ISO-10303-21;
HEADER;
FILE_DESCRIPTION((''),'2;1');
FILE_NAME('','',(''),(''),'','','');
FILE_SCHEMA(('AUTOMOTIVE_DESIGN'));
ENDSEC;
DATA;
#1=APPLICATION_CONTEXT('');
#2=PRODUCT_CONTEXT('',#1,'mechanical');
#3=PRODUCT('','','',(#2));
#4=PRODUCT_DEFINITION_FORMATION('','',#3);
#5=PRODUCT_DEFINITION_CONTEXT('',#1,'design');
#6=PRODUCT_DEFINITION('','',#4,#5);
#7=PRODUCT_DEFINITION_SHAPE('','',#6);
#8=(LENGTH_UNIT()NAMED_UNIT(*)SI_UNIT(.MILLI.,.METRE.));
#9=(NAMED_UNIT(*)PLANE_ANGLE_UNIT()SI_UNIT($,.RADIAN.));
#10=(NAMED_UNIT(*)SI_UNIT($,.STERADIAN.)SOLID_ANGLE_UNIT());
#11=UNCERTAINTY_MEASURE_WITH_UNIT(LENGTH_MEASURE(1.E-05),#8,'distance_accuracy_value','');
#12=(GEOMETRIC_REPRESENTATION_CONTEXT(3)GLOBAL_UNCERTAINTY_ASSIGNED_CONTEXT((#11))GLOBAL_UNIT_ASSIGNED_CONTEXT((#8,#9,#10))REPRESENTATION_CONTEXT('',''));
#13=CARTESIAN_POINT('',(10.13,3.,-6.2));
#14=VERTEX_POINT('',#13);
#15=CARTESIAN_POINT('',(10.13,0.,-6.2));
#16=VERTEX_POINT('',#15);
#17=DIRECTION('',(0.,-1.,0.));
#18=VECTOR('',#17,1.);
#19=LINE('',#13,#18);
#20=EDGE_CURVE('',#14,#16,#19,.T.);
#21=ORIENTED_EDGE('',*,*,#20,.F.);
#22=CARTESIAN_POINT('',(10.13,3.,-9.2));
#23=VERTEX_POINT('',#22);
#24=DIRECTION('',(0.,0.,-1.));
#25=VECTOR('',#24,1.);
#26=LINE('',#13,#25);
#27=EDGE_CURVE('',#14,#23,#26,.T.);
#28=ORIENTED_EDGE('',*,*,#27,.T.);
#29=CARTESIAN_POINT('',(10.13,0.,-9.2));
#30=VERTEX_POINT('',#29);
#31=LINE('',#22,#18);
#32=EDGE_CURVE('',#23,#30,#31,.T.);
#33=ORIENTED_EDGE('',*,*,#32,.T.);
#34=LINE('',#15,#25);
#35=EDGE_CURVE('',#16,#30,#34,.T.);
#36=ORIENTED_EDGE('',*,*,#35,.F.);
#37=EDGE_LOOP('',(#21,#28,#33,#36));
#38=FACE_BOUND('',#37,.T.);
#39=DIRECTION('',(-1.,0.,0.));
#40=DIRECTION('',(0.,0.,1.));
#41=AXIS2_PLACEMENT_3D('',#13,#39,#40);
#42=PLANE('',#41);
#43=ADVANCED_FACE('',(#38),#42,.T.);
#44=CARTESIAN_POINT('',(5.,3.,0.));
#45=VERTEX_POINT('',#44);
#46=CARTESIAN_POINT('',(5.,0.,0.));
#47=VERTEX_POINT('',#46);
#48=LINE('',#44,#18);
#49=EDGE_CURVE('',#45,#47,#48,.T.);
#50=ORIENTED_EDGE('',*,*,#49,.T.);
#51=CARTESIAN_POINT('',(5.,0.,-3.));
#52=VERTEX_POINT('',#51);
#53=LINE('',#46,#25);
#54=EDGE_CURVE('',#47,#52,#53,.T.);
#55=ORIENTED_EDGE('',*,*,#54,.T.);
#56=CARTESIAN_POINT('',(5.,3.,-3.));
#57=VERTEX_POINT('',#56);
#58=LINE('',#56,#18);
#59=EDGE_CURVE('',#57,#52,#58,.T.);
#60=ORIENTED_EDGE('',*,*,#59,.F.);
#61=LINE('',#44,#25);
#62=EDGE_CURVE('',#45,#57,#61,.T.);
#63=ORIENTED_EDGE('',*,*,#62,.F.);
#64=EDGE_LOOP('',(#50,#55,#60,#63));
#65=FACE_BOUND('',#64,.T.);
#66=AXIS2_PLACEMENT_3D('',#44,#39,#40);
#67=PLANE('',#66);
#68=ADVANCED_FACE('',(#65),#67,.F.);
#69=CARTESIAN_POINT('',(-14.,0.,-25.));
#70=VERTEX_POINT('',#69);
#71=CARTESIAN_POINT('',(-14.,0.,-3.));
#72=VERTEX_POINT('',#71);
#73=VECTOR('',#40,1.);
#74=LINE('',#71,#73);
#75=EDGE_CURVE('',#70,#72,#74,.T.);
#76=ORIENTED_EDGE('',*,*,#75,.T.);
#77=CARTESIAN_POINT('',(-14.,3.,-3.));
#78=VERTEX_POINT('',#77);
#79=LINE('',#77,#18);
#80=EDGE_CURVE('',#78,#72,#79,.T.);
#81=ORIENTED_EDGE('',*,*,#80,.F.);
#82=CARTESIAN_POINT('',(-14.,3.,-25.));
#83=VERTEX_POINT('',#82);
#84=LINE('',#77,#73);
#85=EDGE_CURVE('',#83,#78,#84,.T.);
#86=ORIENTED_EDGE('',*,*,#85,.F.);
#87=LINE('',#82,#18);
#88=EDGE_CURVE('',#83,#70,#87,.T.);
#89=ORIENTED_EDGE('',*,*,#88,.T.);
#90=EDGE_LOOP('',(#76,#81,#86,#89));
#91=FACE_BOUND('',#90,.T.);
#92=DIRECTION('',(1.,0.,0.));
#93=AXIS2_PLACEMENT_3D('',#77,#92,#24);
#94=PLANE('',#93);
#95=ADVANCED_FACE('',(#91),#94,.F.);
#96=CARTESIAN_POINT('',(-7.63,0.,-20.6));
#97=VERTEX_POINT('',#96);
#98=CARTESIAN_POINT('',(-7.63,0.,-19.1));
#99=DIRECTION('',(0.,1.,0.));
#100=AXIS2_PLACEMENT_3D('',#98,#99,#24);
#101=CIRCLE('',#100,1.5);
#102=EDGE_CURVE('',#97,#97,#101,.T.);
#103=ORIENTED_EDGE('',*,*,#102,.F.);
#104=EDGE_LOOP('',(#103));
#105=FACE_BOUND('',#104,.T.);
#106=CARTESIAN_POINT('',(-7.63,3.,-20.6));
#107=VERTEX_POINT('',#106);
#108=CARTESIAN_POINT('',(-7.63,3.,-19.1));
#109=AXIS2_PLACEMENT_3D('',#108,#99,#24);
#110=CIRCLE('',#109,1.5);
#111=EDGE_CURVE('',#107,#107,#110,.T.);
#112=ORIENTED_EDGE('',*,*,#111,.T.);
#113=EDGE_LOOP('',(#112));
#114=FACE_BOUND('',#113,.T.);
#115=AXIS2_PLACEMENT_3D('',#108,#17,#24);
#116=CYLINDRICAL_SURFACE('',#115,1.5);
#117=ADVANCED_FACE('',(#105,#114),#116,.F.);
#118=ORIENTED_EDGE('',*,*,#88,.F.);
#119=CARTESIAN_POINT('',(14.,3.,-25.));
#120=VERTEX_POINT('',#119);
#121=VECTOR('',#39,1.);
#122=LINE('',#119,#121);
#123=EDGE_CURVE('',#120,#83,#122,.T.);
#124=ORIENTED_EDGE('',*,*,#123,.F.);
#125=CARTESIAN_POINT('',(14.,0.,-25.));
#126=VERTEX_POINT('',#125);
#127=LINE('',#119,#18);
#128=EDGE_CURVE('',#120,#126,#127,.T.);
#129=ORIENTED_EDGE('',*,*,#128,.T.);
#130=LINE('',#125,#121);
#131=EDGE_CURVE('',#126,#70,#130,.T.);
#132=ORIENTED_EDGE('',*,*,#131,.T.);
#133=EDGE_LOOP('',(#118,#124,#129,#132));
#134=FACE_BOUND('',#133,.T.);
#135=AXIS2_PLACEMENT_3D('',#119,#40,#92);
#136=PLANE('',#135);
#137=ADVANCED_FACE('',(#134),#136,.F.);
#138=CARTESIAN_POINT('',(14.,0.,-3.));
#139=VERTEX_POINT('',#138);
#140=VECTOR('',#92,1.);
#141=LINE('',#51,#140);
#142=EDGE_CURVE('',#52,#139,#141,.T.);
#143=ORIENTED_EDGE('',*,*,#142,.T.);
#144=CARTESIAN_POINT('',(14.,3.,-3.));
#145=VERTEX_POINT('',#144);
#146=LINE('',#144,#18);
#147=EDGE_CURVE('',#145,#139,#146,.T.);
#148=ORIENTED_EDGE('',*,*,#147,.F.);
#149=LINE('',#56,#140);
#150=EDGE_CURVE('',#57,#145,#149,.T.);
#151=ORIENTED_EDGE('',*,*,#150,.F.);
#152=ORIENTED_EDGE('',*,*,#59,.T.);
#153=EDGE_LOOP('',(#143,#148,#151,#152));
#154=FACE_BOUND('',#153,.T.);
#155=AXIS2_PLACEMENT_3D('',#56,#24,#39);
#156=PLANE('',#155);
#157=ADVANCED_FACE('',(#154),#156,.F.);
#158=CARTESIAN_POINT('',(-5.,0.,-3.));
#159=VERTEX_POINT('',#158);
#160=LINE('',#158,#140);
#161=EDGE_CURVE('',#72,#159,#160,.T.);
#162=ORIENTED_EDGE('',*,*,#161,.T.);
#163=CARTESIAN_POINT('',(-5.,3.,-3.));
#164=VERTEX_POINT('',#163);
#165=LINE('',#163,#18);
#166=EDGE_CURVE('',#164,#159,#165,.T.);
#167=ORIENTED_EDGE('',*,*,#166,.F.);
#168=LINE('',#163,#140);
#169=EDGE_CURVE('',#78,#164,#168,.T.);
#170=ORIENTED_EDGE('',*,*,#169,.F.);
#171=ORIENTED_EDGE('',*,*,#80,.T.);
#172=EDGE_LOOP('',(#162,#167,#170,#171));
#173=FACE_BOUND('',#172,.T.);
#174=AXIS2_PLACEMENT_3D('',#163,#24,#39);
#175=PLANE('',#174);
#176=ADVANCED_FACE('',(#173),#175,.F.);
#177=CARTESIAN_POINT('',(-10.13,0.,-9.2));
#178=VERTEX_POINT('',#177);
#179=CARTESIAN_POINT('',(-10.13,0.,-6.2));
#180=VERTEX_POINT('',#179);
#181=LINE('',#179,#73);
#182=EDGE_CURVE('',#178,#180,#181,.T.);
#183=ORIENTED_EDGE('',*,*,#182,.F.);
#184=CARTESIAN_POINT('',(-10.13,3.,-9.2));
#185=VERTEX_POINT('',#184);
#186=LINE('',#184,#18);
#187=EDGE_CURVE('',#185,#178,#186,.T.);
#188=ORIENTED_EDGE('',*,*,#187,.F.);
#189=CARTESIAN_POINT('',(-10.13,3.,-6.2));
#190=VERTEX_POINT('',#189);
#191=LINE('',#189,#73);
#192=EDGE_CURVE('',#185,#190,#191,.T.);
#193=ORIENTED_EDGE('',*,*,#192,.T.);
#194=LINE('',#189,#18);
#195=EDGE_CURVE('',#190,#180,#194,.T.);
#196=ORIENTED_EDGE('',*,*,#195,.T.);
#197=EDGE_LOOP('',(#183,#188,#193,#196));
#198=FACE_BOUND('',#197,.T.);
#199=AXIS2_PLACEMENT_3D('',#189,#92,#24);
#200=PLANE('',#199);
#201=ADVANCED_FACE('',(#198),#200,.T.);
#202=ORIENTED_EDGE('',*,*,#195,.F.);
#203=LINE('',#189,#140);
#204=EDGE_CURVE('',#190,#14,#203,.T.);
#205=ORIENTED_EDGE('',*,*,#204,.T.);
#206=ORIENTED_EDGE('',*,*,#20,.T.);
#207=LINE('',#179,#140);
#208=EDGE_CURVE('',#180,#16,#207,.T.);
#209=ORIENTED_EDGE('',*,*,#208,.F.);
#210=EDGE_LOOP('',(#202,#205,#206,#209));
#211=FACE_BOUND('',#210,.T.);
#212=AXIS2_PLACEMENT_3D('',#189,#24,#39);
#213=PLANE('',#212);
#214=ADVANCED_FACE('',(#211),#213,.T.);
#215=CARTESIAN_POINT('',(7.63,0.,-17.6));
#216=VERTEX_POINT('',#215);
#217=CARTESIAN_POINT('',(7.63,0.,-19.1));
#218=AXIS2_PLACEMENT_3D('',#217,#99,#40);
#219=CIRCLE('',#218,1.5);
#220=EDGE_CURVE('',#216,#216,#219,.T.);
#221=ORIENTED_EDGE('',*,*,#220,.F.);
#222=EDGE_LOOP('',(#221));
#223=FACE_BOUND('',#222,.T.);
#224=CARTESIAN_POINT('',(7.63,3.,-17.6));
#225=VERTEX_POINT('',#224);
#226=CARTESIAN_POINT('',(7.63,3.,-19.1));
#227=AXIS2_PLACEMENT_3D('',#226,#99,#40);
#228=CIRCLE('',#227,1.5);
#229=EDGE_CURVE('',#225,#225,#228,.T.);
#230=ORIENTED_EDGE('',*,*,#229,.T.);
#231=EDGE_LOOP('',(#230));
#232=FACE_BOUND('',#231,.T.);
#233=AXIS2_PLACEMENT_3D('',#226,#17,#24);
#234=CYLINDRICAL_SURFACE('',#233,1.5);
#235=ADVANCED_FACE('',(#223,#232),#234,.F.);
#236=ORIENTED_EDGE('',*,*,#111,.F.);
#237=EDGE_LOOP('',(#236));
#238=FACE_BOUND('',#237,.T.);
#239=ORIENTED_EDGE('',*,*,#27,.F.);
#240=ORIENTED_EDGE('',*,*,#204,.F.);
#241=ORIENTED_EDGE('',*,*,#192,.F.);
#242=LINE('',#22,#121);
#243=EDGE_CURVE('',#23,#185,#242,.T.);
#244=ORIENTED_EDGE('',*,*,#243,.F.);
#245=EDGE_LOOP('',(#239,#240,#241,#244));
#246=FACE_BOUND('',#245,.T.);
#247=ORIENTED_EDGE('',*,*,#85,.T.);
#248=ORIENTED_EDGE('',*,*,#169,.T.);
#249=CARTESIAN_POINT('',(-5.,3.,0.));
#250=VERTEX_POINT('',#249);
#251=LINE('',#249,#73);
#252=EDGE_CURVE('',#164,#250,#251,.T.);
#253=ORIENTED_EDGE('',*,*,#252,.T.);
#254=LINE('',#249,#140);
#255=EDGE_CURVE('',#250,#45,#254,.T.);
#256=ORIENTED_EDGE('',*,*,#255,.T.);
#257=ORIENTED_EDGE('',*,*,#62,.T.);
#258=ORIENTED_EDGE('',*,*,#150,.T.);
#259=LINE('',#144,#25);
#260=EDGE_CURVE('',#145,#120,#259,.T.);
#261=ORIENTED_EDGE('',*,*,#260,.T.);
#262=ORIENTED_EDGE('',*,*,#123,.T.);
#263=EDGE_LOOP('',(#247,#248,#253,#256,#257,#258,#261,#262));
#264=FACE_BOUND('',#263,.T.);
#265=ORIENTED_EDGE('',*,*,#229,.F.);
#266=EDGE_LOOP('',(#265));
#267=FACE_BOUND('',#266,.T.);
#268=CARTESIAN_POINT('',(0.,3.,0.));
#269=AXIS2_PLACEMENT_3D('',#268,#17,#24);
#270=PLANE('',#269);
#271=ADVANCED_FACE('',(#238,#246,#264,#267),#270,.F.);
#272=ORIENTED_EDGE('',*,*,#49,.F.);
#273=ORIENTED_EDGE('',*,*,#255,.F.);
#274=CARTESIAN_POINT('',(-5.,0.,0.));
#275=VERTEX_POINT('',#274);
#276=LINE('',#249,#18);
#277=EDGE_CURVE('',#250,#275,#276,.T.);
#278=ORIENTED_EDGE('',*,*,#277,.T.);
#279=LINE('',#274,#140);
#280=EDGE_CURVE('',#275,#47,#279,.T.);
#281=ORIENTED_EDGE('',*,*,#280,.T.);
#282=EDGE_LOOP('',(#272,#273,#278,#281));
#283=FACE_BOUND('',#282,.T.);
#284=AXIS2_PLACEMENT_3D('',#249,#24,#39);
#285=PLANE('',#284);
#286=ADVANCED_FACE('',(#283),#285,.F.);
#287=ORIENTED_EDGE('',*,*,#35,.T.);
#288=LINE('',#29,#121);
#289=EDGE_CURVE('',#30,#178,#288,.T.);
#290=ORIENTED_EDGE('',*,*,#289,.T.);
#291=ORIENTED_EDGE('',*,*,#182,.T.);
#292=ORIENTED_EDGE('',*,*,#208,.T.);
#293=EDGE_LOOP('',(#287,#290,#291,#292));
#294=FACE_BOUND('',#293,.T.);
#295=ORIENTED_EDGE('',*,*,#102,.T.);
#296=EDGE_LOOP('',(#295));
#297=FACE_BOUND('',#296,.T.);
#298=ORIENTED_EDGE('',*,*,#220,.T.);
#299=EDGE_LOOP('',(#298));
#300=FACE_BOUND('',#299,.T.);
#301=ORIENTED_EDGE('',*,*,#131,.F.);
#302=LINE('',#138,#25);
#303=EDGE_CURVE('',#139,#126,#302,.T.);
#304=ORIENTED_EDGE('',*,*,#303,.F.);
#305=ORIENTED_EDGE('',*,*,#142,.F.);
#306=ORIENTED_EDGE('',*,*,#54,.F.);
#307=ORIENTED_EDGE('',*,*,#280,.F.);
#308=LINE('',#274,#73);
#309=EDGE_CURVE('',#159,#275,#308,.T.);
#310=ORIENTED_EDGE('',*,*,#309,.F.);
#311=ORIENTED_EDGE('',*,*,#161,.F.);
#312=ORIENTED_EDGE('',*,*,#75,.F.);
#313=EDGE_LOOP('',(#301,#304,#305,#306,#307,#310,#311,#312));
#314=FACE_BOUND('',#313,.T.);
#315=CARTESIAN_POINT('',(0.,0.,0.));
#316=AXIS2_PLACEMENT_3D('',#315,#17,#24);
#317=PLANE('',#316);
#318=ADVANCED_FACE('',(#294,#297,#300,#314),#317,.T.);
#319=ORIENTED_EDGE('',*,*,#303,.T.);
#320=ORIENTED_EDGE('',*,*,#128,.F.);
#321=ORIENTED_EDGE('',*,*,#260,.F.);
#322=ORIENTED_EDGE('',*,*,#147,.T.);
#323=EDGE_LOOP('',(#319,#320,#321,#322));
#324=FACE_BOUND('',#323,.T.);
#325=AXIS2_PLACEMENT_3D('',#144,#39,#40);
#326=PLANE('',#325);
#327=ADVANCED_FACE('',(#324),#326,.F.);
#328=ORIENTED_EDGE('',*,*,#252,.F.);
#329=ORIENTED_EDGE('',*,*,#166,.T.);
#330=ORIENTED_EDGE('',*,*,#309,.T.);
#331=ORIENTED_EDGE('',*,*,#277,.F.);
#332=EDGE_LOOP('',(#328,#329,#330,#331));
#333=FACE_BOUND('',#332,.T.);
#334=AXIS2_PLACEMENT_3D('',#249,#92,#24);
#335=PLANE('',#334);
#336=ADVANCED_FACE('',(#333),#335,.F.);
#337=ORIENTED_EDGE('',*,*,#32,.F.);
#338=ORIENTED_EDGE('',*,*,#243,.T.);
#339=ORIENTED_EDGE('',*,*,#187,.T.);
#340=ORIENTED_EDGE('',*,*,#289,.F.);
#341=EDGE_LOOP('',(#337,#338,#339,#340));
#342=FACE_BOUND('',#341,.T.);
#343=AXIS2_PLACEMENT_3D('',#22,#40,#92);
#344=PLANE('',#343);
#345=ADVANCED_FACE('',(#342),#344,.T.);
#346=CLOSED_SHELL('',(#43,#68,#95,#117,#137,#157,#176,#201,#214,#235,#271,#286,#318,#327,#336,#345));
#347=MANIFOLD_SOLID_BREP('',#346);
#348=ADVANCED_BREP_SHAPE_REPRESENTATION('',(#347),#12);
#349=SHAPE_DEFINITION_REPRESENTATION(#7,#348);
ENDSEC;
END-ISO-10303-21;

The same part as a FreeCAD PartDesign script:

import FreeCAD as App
import Part
import Sketcher

V = App.Vector
Q = App.Units.Quantity


def add_polygon(sketch, points):
    """Adds a closed chain of lines whose ends are joined by coincident constraints."""
    first, n = sketch.GeometryCount, len(points)
    for a, b in zip(points, points[1:] + points[:1]):
        sketch.addGeometry(Part.LineSegment(App.Vector(*a, 0), App.Vector(*b, 0)), False)
    for i in range(n):
        sketch.addConstraint(Sketcher.Constraint("Coincident", first + i, 2, first + (i + 1) % n, 1))

doc = App.newDocument("Part")
params = doc.addObject("Spreadsheet::Sheet", "Params")
for row, (alias, value) in enumerate([
    ("sketch1_diameter", "3 mm"),
    ("sketch1_width", "10 mm"),
    ("sketch1_width2", "9 mm"),
    ("sketch1_height", "3 mm"),
    ("sketch1_height2", "22 mm"),
    ("pad1_length", "3 mm"),
], start=1):
    params.set(f"A{row}", alias)
    params.set(f"B{row}", "=" + value)
    params.setAlias(f"B{row}", alias)

body = doc.addObject("PartDesign::Body", "Body")

# Sketch on XZ plane
sketch1 = body.newObject("Sketcher::SketchObject", "Sketch")
sketch1.AttachmentSupport = (doc.getObject("XZ_Plane"), [""])
sketch1.MapMode = "FlatFace"
add_polygon(sketch1, [(-5, 0), (5, 0), (5, -3), (14, -3), (14, -25), (-14, -25), (-14, -3), (-5, -3)])  # lines 0-7
add_polygon(sketch1, [(10.13, -6.2), (-10.13, -6.2), (-10.13, -9.2), (10.13, -9.2)])  # lines 8-11
sketch1.addGeometry(Part.Circle(V(-7.63, -19.1, 0), V(0, 0, 1), 1.5), False)  # 12
sketch1.addGeometry(Part.Circle(V(7.63, -19.1, 0), V(0, 0, 1), 1.5), False)  # 13
sketch1.addConstraint([
    Sketcher.Constraint("Horizontal", 0),
    Sketcher.Constraint("Vertical", 1),
    Sketcher.Constraint("Horizontal", 2),
    Sketcher.Constraint("Vertical", 3),
    Sketcher.Constraint("Horizontal", 4),
    Sketcher.Constraint("Vertical", 5),
    Sketcher.Constraint("Horizontal", 6),
    Sketcher.Constraint("Vertical", 7),
    Sketcher.Constraint("Horizontal", 8),
    Sketcher.Constraint("Vertical", 9),
    Sketcher.Constraint("Horizontal", 10),
    Sketcher.Constraint("Vertical", 11),
    Sketcher.Constraint("Equal", 12, 13),
    Sketcher.Constraint("Symmetric", 0, 2, 7, 2, -1, 1),
    Sketcher.Constraint("Symmetric", 12, 3, 13, 3, -2),
    Sketcher.Constraint("Symmetric", 2, 2, 5, 2, -2),
    Sketcher.Constraint("Equal", 7, 9),
    Sketcher.Constraint("Diameter", 12, Q("3 mm")),
    Sketcher.Constraint("DistanceX", 0, 1, 0, 2, Q("10 mm")),
    Sketcher.Constraint("DistanceX", 2, 1, 2, 2, Q("9 mm")),
    Sketcher.Constraint("DistanceY", 1, 2, 1, 1, Q("3 mm")),
    Sketcher.Constraint("DistanceY", 3, 2, 3, 1, Q("22 mm")),
    Sketcher.Constraint("DistanceX", 8, 2, 8, 1, Q("20.26 mm")),
    Sketcher.Constraint("DistanceY", 12, 3, -1, 1, Q("19.1 mm")),
    Sketcher.Constraint("DistanceY", 8, 2, -1, 1, Q("6.2 mm")),
    Sketcher.Constraint("DistanceX", 8, 2, 12, 3, Q("2.5 mm")),
    Sketcher.Constraint("DistanceX", 13, 3, 10, 2, Q("2.5 mm")),
])
sketch1.setExpression("Constraints[29]", "Params.sketch1_diameter")
sketch1.setExpression("Constraints[30]", "Params.sketch1_width")
sketch1.setExpression("Constraints[31]", "Params.sketch1_width2")
sketch1.setExpression("Constraints[32]", "Params.sketch1_height")
sketch1.setExpression("Constraints[33]", "Params.sketch1_height2")
pad1 = body.newObject("PartDesign::Pad", "Pad")
pad1.Profile = sketch1
pad1.setExpression("Length", "Params.pad1_length")
pad1.Reversed = True

doc.recompute()
